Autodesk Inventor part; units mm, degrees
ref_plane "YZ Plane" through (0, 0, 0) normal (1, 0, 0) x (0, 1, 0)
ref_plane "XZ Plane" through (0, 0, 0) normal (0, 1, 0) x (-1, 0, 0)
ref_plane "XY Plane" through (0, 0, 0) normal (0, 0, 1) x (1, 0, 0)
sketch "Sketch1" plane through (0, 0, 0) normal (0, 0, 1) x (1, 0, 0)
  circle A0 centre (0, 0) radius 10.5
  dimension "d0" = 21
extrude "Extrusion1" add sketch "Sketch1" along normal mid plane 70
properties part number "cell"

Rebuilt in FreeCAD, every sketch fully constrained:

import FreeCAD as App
import Part
import Sketcher

V = App.Vector
Q = App.Units.Quantity

doc = App.newDocument("Part")
body = doc.addObject("PartDesign::Body", "Body")

# Sketch on XY plane
sketch1 = doc.addObject("Sketcher::SketchObject", "Sketch")
body.addObject(sketch1)
sketch1.AttachmentSupport = (doc.XY_Plane, [""])
sketch1.MapMode = "FlatFace"
sketch1.addGeometry(Part.Circle(V(0, 0, 0), V(0, 0, 1), 10.5), False)
sketch1.addConstraint([
    Sketcher.Constraint("Coincident", 0, 3, -1, 1),
    Sketcher.Constraint("Diameter", 0, Q("21 mm")),
])
pad1 = doc.addObject("PartDesign::Pad", "Pad")
body.addObject(pad1)
pad1.Profile = sketch1
pad1.Length = 70
pad1.Midplane = True

doc.recompute()
